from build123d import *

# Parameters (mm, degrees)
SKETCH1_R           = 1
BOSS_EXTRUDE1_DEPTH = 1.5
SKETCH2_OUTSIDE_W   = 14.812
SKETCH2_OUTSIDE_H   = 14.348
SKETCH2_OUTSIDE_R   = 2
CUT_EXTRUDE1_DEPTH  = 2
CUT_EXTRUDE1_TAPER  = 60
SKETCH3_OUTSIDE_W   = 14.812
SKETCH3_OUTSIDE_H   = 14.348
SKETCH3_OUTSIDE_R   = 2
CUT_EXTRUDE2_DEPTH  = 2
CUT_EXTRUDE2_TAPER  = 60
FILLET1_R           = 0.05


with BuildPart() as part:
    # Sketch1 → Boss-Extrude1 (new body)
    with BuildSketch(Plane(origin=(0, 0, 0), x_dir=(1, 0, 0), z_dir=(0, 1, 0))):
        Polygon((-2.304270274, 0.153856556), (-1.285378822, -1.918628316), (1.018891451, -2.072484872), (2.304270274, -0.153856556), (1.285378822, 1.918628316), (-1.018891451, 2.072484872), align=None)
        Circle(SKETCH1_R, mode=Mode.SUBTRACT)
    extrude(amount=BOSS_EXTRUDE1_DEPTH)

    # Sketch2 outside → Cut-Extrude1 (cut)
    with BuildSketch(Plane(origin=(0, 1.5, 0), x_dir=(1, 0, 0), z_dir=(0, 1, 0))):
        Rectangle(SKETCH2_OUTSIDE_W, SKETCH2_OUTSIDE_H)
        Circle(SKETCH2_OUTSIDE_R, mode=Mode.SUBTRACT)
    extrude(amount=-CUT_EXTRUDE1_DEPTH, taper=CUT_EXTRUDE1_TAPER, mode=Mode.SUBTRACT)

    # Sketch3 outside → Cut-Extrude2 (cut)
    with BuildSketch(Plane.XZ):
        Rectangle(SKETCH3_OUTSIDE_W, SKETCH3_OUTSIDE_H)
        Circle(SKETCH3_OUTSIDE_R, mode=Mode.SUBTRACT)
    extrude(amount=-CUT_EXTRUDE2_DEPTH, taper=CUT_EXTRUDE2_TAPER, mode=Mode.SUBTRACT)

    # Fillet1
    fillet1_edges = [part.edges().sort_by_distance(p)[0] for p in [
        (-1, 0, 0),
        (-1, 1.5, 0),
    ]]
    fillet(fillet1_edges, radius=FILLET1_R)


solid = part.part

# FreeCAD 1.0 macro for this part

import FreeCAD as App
import Part
import Sketcher
from FreeCAD import Vector
Q = App.Units.Quantity


def edges_at(feature, points):
    """Names of the edges that pass closest to the given points."""
    edges = feature.Shape.Edges
    near = lambda p: min(range(len(edges)), key=lambda i: edges[i].distToShape(Part.Vertex(*p))[0])
    return sorted({f"Edge{near(p) + 1}" for p in points})

doc = App.newDocument("Part")
params = doc.addObject("Spreadsheet::Sheet", "Params")
for row, (alias, value) in enumerate([
    ("sketch1_diameter", "2 mm"),
    ("pad1_length", "1.5 mm"),
    ("sketch2_diameter", "4 mm"),
    ("pocket1_length", "2 mm"),
    ("pocket1_taper", "60 deg"),
    ("sketch3_diameter", "4 mm"),
    ("pocket2_length", "2 mm"),
    ("pocket2_taper", "60 deg"),
    ("fillet_radius", "0.05 mm"),
], start=1):
    params.set(f"A{row}", alias)
    params.set(f"B{row}", "=" + value)
    params.setAlias(f"B{row}", alias)

body = doc.addObject("PartDesign::Body", "Body")

sketch1 = body.newObject("Sketcher::SketchObject", "Sketch")
sketch1.AttachmentSupport = (doc.getObject("XZ_Plane"), [""])
sketch1.MapMode = "FlatFace"
sketch1.addGeometry(Part.LineSegment(Vector(-2.30427, -0.153857, 0), Vector(-1.285379, 1.918628, 0)), False)
sketch1.addGeometry(Part.LineSegment(Vector(-1.285379, 1.918628, 0), Vector(1.018891, 2.072485, 0)), False)
sketch1.addGeometry(Part.LineSegment(Vector(1.018891, 2.072485, 0), Vector(2.30427, 0.153857, 0)), False)
sketch1.addGeometry(Part.LineSegment(Vector(2.30427, 0.153857, 0), Vector(1.285379, -1.918628, 0)), False)
sketch1.addGeometry(Part.LineSegment(Vector(1.285379, -1.918628, 0), Vector(-1.018891, -2.072485, 0)), False)
sketch1.addGeometry(Part.LineSegment(Vector(-1.018891, -2.072485, 0), Vector(-2.30427, -0.153857, 0)), False)
sketch1.addGeometry(Part.Circle(Vector(0, 0, 0), Vector(0, 0, 1), 1), False)
sketch1.addConstraint(Sketcher.Constraint("Coincident", 0, 2, 1, 1))
sketch1.addConstraint(Sketcher.Constraint("Coincident", 1, 2, 2, 1))
sketch1.addConstraint(Sketcher.Constraint("Coincident", 2, 2, 3, 1))
sketch1.addConstraint(Sketcher.Constraint("Coincident", 3, 2, 4, 1))
sketch1.addConstraint(Sketcher.Constraint("Coincident", 4, 2, 5, 1))
sketch1.addConstraint(Sketcher.Constraint("Coincident", 5, 2, 0, 1))
sketch1.addConstraint(Sketcher.Constraint("Coincident", 6, 3, -1, 1))
sketch1.addConstraint(Sketcher.Constraint("Symmetric", 0, 2, 3, 2, -1, 1))
sketch1.addConstraint(Sketcher.Constraint("Symmetric", 1, 2, 4, 2, -1, 1))
sketch1.addConstraint(Sketcher.Constraint("Symmetric", 2, 2, 5, 2, -1, 1))
sketch1.addConstraint(Sketcher.Constraint("Equal", 0, 1))
sketch1.addConstraint(Sketcher.Constraint("Equal", 1, 2))
sketch1.addConstraint(Sketcher.Constraint("Diameter", 6, Q("2 mm")))
sketch1.addConstraint(Sketcher.Constraint("Distance", 0, Q("2.309401 mm")))
sketch1.addConstraint(Sketcher.Constraint("DistanceX", 0, 2, -1, 1, Q("1.285379 mm")))
sketch1.addConstraint(Sketcher.Constraint("DistanceY", -1, 1, 0, 2, Q("1.918628 mm")))
sketch1.addConstraint(Sketcher.Constraint("DistanceX", -1, 1, 1, 2, Q("1.018891 mm")))
sketch1.setExpression("Constraints[12]", "Params.sketch1_diameter")
pad1 = body.newObject("PartDesign::Pad", "Pad")
pad1.Profile = sketch1
pad1.setExpression("Length", "Params.pad1_length")
pad1.Reversed = True

sketch2 = body.newObject("Sketcher::SketchObject", "Sketch001")
sketch2.AttachmentSupport = (doc.getObject("XZ_Plane"), [""])
sketch2.MapMode = "FlatFace"
sketch2.AttachmentOffset = App.Placement(Vector(0, 0, -1.5), App.Rotation())
sketch2.addGeometry(Part.LineSegment(Vector(-7.406, -7.174, 0), Vector(-7.406, 7.174, 0)), False)
sketch2.addGeometry(Part.LineSegment(Vector(-7.406, 7.174, 0), Vector(7.406, 7.174, 0)), False)
sketch2.addGeometry(Part.LineSegment(Vector(7.406, 7.174, 0), Vector(7.406, -7.174, 0)), False)
sketch2.addGeometry(Part.LineSegment(Vector(7.406, -7.174, 0), Vector(-7.406, -7.174, 0)), False)
sketch2.addGeometry(Part.Circle(Vector(0, 0, 0), Vector(0, 0, 1), 2), False)
sketch2.addConstraint(Sketcher.Constraint("Coincident", 0, 2, 1, 1))
sketch2.addConstraint(Sketcher.Constraint("Coincident", 1, 2, 2, 1))
sketch2.addConstraint(Sketcher.Constraint("Coincident", 2, 2, 3, 1))
sketch2.addConstraint(Sketcher.Constraint("Coincident", 3, 2, 0, 1))
sketch2.addConstraint(Sketcher.Constraint("Vertical", 0))
sketch2.addConstraint(Sketcher.Constraint("Horizontal", 1))
sketch2.addConstraint(Sketcher.Constraint("Vertical", 2))
sketch2.addConstraint(Sketcher.Constraint("Horizontal", 3))
sketch2.addConstraint(Sketcher.Constraint("Coincident", 4, 3, -1, 1))
sketch2.addConstraint(Sketcher.Constraint("Symmetric", 0, 2, 2, 2, -1, 1))
sketch2.addConstraint(Sketcher.Constraint("Diameter", 4, Q("4 mm")))
sketch2.addConstraint(Sketcher.Constraint("DistanceX", 1, 1, 1, 2, Q("14.812 mm")))
sketch2.addConstraint(Sketcher.Constraint("DistanceY", 0, 1, 0, 2, Q("14.348 mm")))
sketch2.setExpression("Constraints[10]", "Params.sketch2_diameter")
pocket1 = body.newObject("PartDesign::Pocket", "Pocket")
pocket1.Profile = sketch2
pocket1.setExpression("Length", "Params.pocket1_length")
pocket1.Reversed = True
pocket1.setExpression("TaperAngle", "Params.pocket1_taper")

sketch3 = body.newObject("Sketcher::SketchObject", "Sketch002")
sketch3.AttachmentSupport = (doc.getObject("XZ_Plane"), [""])
sketch3.MapMode = "FlatFace"
sketch3.addGeometry(Part.LineSegment(Vector(-7.406, 7.174, 0), Vector(-7.406, -7.174, 0)), False)
sketch3.addGeometry(Part.LineSegment(Vector(-7.406, -7.174, 0), Vector(7.406, -7.174, 0)), False)
sketch3.addGeometry(Part.LineSegment(Vector(7.406, -7.174, 0), Vector(7.406, 7.174, 0)), False)
sketch3.addGeometry(Part.LineSegment(Vector(7.406, 7.174, 0), Vector(-7.406, 7.174, 0)), False)
sketch3.addGeometry(Part.Circle(Vector(0, 0, 0), Vector(0, 0, 1), 2), False)
sketch3.addConstraint(Sketcher.Constraint("Coincident", 0, 2, 1, 1))
sketch3.addConstraint(Sketcher.Constraint("Coincident", 1, 2, 2, 1))
sketch3.addConstraint(Sketcher.Constraint("Coincident", 2, 2, 3, 1))
sketch3.addConstraint(Sketcher.Constraint("Coincident", 3, 2, 0, 1))
sketch3.addConstraint(Sketcher.Constraint("Vertical", 0))
sketch3.addConstraint(Sketcher.Constraint("Horizontal", 1))
sketch3.addConstraint(Sketcher.Constraint("Vertical", 2))
sketch3.addConstraint(Sketcher.Constraint("Horizontal", 3))
sketch3.addConstraint(Sketcher.Constraint("Coincident", 4, 3, -1, 1))
sketch3.addConstraint(Sketcher.Constraint("Symmetric", 0, 2, 2, 2, -1, 1))
sketch3.addConstraint(Sketcher.Constraint("Diameter", 4, Q("4 mm")))
sketch3.addConstraint(Sketcher.Constraint("DistanceX", 1, 1, 1, 2, Q("14.812 mm")))
sketch3.addConstraint(Sketcher.Constraint("DistanceY", 0, 2, 0, 1, Q("14.348 mm")))
sketch3.setExpression("Constraints[10]", "Params.sketch3_diameter")
pocket2 = body.newObject("PartDesign::Pocket", "Pocket001")
pocket2.Profile = sketch3
pocket2.setExpression("Length", "Params.pocket2_length")
pocket2.setExpression("TaperAngle", "Params.pocket2_taper")
doc.recompute()

fillet = body.newObject("PartDesign::Fillet", "Fillet")
fillet.Base = (pocket2, edges_at(pocket2, [(-1, 0, 0), (-1, 1.5, 0)]))
fillet.setExpression("Radius", "Params.fillet_radius")

doc.recompute()
